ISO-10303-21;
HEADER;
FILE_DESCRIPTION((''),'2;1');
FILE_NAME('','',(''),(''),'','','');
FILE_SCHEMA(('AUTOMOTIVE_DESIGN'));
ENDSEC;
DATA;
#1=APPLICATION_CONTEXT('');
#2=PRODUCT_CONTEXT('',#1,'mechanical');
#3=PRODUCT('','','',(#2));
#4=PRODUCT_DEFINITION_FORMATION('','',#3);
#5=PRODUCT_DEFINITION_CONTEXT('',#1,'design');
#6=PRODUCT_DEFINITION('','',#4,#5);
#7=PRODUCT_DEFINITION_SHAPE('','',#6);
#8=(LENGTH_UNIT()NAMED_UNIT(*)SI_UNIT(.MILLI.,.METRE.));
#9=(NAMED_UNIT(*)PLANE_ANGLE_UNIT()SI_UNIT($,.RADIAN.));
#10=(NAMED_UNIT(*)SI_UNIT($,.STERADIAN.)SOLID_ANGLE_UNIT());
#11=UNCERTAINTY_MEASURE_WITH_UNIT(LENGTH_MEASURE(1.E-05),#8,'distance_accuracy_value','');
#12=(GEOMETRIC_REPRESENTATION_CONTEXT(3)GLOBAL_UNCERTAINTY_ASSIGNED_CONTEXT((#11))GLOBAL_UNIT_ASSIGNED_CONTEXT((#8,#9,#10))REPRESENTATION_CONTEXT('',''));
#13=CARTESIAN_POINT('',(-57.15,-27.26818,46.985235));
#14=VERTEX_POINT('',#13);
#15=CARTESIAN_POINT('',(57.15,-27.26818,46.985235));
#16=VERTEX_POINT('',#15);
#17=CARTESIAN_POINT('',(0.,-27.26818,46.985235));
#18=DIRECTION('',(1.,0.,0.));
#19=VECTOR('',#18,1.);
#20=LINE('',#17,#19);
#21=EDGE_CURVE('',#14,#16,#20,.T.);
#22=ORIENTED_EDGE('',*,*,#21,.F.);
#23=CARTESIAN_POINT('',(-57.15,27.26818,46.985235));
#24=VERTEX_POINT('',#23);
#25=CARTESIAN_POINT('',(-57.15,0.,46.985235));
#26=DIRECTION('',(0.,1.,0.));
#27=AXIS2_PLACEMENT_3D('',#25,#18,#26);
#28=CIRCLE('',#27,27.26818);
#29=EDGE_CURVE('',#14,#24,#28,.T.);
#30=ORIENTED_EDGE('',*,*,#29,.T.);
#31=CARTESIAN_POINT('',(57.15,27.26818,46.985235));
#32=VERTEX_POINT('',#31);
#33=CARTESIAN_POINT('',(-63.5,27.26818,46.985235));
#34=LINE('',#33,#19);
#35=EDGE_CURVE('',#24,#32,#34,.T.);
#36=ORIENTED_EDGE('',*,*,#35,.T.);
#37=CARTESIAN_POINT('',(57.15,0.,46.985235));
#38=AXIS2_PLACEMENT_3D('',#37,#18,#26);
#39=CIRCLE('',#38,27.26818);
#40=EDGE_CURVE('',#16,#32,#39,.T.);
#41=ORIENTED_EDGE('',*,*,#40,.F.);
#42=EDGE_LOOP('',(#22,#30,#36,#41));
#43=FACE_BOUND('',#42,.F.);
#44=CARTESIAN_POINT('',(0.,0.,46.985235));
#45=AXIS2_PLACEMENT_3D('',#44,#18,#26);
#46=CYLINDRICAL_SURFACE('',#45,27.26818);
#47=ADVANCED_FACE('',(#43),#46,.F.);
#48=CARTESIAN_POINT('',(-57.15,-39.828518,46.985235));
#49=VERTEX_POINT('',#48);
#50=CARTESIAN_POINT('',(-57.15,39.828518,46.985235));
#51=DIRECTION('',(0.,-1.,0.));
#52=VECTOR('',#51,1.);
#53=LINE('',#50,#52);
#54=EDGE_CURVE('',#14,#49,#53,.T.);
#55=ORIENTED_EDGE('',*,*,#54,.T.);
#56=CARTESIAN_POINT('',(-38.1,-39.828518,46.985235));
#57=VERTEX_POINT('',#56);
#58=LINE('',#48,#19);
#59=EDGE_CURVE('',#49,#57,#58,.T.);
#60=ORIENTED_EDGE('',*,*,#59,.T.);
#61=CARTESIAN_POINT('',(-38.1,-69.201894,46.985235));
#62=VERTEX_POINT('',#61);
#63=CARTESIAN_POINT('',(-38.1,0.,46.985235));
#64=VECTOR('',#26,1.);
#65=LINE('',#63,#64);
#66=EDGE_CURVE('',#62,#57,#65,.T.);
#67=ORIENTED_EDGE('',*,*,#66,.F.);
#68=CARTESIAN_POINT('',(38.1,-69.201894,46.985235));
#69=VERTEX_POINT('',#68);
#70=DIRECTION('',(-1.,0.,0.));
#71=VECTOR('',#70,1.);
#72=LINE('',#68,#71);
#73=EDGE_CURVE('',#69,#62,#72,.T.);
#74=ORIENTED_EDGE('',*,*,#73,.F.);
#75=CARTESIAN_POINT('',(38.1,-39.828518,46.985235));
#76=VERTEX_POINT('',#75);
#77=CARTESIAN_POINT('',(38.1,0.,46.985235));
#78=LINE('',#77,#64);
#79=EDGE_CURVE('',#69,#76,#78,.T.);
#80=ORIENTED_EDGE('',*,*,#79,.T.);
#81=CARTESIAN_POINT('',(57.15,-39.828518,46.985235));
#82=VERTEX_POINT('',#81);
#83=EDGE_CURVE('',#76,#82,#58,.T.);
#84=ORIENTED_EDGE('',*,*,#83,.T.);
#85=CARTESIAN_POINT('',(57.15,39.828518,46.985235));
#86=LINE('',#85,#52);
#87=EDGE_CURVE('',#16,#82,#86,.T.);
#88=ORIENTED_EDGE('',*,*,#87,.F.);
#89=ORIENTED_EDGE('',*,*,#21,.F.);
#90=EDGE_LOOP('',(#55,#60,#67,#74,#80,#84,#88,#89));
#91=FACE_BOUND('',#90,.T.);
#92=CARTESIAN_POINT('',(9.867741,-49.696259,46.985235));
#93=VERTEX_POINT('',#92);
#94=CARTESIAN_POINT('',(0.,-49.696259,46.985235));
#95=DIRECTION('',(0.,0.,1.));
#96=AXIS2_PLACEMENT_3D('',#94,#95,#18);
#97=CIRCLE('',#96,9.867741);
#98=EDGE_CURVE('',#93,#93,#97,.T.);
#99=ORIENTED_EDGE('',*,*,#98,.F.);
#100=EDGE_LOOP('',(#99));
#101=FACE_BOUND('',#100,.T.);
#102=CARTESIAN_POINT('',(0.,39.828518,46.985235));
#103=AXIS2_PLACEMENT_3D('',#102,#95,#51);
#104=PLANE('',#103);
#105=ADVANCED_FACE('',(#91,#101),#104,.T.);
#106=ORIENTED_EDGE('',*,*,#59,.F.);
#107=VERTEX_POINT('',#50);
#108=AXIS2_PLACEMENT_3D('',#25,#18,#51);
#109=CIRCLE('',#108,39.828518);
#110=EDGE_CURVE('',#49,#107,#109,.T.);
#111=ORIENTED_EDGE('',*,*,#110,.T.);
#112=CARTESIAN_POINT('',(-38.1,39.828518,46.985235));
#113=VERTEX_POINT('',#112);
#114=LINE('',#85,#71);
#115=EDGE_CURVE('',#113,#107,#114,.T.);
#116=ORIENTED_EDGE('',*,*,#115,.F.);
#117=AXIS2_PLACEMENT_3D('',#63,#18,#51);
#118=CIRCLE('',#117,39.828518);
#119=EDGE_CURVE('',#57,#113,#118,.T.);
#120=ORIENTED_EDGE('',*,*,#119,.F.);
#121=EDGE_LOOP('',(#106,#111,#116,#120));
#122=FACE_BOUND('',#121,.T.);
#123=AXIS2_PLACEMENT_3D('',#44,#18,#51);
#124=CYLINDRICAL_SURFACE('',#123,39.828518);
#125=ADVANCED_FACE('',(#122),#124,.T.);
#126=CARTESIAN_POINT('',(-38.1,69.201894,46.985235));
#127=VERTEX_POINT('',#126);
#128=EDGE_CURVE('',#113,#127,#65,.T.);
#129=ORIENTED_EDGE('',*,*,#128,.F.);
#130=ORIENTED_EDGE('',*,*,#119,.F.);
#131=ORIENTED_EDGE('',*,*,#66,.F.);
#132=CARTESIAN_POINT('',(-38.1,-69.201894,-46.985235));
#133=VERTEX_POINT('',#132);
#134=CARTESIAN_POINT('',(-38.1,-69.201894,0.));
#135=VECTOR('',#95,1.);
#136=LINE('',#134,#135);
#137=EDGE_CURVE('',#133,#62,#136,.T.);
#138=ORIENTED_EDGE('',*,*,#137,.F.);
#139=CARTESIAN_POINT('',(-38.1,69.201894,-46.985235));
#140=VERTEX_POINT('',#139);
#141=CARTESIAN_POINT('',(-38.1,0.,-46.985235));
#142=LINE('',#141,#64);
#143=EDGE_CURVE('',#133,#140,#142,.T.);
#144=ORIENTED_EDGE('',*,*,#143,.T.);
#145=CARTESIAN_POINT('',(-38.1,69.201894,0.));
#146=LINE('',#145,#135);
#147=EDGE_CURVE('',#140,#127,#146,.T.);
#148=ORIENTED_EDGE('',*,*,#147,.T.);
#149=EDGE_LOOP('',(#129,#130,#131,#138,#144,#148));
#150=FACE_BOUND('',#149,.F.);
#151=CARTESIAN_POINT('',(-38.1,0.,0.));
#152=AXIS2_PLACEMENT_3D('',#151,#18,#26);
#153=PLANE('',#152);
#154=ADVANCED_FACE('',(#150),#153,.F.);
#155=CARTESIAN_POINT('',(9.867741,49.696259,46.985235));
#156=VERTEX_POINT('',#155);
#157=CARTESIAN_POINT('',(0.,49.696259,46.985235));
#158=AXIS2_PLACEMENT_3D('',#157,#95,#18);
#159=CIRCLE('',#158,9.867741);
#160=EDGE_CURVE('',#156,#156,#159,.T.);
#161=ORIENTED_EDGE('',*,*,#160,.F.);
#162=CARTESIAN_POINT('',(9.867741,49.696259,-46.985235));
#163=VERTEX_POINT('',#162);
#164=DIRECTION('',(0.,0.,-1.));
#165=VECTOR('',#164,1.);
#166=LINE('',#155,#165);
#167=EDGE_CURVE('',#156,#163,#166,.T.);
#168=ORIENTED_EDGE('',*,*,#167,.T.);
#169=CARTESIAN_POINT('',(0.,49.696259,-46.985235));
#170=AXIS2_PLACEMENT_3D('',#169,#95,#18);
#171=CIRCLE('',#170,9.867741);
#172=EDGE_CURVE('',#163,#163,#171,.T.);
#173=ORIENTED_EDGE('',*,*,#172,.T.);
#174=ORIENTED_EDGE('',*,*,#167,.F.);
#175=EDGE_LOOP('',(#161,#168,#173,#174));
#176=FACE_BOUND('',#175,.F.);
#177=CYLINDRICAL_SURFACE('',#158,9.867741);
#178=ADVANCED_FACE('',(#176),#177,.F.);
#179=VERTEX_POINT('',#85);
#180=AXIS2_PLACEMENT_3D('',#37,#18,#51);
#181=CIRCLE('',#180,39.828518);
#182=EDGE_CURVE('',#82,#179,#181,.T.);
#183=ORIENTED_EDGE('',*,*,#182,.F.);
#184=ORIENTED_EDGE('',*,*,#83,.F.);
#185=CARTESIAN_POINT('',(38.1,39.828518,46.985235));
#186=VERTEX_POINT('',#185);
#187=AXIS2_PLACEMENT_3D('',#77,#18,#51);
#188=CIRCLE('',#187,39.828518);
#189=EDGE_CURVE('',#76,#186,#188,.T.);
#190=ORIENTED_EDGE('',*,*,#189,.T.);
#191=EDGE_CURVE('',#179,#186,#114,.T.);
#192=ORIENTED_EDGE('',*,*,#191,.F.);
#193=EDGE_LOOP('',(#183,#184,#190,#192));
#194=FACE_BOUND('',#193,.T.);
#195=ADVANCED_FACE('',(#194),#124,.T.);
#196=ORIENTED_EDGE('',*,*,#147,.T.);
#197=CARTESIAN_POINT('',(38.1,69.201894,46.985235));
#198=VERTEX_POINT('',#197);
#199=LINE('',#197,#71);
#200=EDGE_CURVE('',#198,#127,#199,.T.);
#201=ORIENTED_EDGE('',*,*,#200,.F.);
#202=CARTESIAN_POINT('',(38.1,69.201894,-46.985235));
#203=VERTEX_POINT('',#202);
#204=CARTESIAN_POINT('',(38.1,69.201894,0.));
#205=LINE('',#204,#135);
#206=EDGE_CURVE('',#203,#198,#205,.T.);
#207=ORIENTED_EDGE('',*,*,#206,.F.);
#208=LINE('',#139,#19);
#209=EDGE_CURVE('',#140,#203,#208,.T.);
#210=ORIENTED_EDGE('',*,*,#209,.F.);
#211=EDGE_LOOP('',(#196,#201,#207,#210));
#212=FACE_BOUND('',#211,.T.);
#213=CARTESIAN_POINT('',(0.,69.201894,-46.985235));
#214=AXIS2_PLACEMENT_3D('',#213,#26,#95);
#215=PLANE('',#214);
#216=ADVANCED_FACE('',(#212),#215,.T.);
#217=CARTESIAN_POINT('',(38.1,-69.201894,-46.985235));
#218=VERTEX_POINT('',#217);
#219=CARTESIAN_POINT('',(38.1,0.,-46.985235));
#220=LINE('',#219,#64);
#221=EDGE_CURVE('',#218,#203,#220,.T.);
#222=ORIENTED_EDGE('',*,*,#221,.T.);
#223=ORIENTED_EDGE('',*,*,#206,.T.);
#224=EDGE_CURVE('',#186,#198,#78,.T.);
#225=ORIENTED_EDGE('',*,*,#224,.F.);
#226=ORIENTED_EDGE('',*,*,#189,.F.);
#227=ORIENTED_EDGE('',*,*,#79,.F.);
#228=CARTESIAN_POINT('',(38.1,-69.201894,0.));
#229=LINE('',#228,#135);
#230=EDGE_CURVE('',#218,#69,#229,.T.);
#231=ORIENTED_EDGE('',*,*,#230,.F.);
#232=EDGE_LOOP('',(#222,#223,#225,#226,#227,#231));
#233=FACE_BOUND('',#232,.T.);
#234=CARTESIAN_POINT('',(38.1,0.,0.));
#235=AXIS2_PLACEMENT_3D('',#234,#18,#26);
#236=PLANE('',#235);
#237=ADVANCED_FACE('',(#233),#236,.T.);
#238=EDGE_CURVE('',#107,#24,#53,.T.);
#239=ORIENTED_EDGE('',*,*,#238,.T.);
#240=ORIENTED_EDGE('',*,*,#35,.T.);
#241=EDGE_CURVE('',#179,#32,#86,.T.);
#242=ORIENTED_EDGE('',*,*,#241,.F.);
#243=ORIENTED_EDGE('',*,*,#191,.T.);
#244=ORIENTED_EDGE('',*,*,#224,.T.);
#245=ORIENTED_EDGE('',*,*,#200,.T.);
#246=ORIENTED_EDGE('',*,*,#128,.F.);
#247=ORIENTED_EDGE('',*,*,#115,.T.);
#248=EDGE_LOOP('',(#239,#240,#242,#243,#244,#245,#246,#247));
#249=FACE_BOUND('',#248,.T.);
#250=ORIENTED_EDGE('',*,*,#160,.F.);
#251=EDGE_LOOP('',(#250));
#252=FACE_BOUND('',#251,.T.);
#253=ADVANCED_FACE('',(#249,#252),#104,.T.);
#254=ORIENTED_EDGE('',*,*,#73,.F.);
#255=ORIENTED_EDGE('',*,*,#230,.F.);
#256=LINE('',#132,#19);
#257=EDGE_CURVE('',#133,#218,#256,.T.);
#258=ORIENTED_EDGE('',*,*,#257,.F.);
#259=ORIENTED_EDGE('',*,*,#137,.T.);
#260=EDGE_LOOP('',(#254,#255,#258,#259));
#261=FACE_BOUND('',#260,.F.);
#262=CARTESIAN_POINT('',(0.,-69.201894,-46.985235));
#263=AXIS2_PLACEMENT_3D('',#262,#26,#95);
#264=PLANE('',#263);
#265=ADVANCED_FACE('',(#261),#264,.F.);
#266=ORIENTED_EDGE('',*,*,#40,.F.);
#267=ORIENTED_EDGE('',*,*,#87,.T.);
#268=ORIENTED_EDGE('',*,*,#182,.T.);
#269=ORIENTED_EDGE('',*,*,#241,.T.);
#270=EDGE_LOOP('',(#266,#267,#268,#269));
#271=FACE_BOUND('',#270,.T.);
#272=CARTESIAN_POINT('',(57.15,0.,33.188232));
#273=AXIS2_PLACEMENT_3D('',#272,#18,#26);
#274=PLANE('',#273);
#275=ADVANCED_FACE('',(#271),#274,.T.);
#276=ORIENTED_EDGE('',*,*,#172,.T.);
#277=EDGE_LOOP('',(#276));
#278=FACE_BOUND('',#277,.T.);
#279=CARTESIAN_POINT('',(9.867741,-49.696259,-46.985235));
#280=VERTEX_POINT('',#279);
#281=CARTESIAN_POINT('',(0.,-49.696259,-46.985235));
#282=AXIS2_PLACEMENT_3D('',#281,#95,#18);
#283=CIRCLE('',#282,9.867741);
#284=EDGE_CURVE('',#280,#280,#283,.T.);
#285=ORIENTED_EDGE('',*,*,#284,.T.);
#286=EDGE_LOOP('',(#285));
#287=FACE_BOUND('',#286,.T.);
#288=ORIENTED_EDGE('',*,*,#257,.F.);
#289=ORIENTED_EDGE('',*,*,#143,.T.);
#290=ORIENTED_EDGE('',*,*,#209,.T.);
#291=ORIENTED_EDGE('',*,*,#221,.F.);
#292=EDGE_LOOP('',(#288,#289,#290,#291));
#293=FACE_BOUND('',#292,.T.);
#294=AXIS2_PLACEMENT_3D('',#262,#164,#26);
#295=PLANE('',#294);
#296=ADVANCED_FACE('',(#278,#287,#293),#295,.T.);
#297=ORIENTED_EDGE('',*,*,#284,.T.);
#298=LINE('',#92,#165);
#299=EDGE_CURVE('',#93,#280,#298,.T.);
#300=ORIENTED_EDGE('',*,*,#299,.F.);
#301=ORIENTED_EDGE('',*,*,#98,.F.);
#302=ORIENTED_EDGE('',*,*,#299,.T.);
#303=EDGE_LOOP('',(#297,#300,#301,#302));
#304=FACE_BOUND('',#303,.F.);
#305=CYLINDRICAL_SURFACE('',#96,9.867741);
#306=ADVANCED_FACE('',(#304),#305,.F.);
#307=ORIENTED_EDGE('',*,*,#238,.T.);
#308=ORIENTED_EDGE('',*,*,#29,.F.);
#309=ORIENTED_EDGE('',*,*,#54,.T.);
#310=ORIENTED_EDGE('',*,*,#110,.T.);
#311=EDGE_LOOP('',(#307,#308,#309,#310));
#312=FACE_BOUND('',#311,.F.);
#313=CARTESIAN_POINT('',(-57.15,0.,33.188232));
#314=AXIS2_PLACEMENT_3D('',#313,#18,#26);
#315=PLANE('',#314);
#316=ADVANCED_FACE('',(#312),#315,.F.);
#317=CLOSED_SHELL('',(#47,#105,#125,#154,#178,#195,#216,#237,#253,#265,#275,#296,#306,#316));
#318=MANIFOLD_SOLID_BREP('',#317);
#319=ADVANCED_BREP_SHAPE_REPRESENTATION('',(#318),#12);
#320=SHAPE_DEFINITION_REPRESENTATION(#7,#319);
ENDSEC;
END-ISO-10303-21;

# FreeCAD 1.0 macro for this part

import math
import FreeCAD as App
import Part
import Sketcher
from FreeCAD import Vector
Q = App.Units.Quantity

doc = App.newDocument("Part")
body = doc.addObject("PartDesign::Body", "Body")

# Sketch on YZ plane
sketch1 = body.newObject("Sketcher::SketchObject", "Sketch")
sketch1.AttachmentSupport = (doc.getObject("YZ_Plane"), [""])
sketch1.MapMode = "FlatFace"
sketch1.addGeometry([
    Part.LineSegment(Vector(-69, 47, 0), Vector(-69, -47, 0)),
    Part.LineSegment(Vector(-69, -47, 0), Vector(69, -47, 0)),
    Part.LineSegment(Vector(69, -47, 0), Vector(69, 47, 0)),
    Part.LineSegment(Vector(69, 47, 0), Vector(-69, 47, 0)),
], False)
sketch1.addConstraint([
    Sketcher.Constraint("Coincident", 0, 2, 1, 1),
    Sketcher.Constraint("Coincident", 1, 2, 2, 1),
    Sketcher.Constraint("Coincident", 2, 2, 3, 1),
    Sketcher.Constraint("Coincident", 3, 2, 0, 1),
    Sketcher.Constraint("Vertical", 0),
    Sketcher.Constraint("Horizontal", 1),
    Sketcher.Constraint("Vertical", 2),
    Sketcher.Constraint("Horizontal", 3),
    Sketcher.Constraint("Symmetric", 0, 2, 2, 2, -1, 1),
    Sketcher.Constraint("DistanceX", 1, 1, 1, 2, 138.403788),
    Sketcher.Constraint("DistanceY", 0, 2, 0, 1, 93.97047),
])
pad1 = body.newObject("PartDesign::Pad", "Pad")
pad1.Profile = sketch1
pad1.Length = Q("3 in")
pad1.Midplane = True

# Sketch on YZ plane
sketch2 = body.newObject("Sketcher::SketchObject", "Sketch001")
sketch2.AttachmentSupport = (doc.getObject("YZ_Plane"), [""])
sketch2.MapMode = "FlatFace"
sketch2.addGeometry([
    Part.LineSegment(Vector(40, 47, 0), Vector(-40, 47, 0)),
    Part.ArcOfCircle(Part.Circle(Vector(0, 47, 0), Vector(0, 0, 1), 40), math.radians(180), math.radians(360)),
], False)
sketch2.addConstraint([
    Sketcher.Constraint("Coincident", 0, 1, 1, 2),
    Sketcher.Constraint("Coincident", 1, 1, 0, 2),
    Sketcher.Constraint("Horizontal", 0),
    Sketcher.Constraint("PointOnObject", 1, 3, -2),
    Sketcher.Constraint("Horizontal", 1, 3, 0, 1),
    Sketcher.Constraint("Radius", 1, 39.828518),
    Sketcher.Constraint("DistanceY", -1, 1, 1, 3, 46.985235),
])
pad2 = body.newObject("PartDesign::Pad", "Pad001")
pad2.Profile = sketch2
pad2.Length = Q("4.5 in")
pad2.Midplane = True

# Sketch on YZ plane
sketch3 = body.newObject("Sketcher::SketchObject", "Sketch002")
sketch3.AttachmentSupport = (doc.getObject("YZ_Plane"), [""])
sketch3.MapMode = "FlatFace"
sketch3.addGeometry(Part.Circle(Vector(0, 47, 0), Vector(0, 0, 1), 27), False)
sketch3.addConstraint([
    Sketcher.Constraint("PointOnObject", 0, 3, -2),
    Sketcher.Constraint("Diameter", 0, 54.53636),
    Sketcher.Constraint("DistanceY", -1, 1, 0, 3, 46.985235),
])
pocket1 = body.newObject("PartDesign::Pocket", "Pocket")
pocket1.Profile = sketch3
pocket1.Length = Q("5 in")
pocket1.Midplane = True

# Sketch on XY plane
sketch4 = body.newObject("Sketcher::SketchObject", "Sketch003")
sketch4.AttachmentSupport = (doc.getObject("XY_Plane"), [""])
sketch4.MapMode = "FlatFace"
sketch4.AttachmentOffset = App.Placement(Vector(0, 0, 46.985235), App.Rotation())
sketch4.addGeometry([
    Part.Circle(Vector(0, 50, 0), Vector(0, 0, 1), 10),
    Part.Circle(Vector(0, -50, 0), Vector(0, 0, 1), 10),
], False)
sketch4.addConstraint([
    Sketcher.Constraint("Equal", 0, 1),
    Sketcher.Constraint("Symmetric", 0, 3, 1, 3, -1, 1),
    Sketcher.Constraint("PointOnObject", 0, 3, -2),
    Sketcher.Constraint("Diameter", 0, 19.735482),
    Sketcher.Constraint("DistanceY", -1, 1, 0, 3, 49.696259),
])
pocket2 = body.newObject("PartDesign::Pocket", "Pocket001")
pocket2.Profile = sketch4
pocket2.Length = Q("8 in")

doc.recompute()
